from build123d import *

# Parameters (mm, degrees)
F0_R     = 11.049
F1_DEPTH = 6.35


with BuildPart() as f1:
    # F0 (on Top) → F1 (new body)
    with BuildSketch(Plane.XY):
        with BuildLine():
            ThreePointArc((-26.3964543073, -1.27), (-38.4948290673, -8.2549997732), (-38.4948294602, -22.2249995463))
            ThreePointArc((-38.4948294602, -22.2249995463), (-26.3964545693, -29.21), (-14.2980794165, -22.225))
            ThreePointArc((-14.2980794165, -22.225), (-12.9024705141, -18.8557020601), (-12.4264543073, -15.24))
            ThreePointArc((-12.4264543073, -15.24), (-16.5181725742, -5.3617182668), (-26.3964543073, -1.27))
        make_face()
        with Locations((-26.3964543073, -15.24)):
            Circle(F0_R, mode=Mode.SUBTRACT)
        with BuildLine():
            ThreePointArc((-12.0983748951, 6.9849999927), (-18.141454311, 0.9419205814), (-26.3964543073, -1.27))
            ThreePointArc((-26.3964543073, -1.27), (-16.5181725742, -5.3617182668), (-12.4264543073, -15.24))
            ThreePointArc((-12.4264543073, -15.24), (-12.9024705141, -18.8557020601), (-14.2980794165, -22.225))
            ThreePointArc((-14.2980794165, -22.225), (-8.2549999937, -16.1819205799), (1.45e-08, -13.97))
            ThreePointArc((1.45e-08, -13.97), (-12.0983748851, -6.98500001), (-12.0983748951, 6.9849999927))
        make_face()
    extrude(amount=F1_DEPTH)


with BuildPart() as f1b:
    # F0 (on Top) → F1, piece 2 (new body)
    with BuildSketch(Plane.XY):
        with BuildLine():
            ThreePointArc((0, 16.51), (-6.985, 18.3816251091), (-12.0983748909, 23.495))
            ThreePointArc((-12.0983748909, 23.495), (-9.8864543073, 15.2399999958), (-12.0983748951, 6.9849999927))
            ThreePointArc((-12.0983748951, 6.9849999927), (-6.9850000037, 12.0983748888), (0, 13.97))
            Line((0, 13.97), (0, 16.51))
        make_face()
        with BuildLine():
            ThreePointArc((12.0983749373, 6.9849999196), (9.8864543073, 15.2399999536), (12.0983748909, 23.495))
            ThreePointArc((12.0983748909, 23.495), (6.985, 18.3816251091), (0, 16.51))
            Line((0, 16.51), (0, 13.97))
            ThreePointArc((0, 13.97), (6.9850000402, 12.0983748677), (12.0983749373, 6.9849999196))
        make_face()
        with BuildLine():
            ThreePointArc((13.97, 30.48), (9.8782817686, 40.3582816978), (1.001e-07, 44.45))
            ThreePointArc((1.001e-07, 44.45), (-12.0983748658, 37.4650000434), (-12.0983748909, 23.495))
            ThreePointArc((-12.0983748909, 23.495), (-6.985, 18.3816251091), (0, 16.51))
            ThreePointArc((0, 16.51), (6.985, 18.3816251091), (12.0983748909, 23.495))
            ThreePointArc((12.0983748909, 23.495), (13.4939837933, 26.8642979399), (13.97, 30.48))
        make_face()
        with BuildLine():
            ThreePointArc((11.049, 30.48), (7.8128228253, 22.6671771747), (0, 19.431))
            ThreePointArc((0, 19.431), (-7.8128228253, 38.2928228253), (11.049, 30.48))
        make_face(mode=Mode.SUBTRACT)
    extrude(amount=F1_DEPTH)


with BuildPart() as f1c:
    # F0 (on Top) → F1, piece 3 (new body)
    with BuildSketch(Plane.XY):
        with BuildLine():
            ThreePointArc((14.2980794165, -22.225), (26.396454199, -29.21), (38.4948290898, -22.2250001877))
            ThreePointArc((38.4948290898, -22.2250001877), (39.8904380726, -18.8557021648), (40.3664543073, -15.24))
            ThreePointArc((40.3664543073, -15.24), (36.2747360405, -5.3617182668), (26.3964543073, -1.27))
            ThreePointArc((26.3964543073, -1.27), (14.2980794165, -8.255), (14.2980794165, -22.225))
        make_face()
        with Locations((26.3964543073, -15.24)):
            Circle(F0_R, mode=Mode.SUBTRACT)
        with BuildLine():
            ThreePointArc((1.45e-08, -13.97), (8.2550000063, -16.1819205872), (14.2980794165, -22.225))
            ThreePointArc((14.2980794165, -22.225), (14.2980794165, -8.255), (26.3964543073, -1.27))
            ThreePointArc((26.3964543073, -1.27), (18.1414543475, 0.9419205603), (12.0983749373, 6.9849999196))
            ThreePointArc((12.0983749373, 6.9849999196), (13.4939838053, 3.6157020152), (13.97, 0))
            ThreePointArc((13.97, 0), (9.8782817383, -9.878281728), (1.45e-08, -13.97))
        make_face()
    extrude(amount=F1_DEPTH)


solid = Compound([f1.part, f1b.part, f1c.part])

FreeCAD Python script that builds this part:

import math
import FreeCAD as App
import Part
import Sketcher
from FreeCAD import Vector
Q = App.Units.Quantity

doc = App.newDocument("Part")
body = doc.addObject("PartDesign::Body", "Body")

sketch1 = body.newObject("Sketcher::SketchObject", "Sketch")
sketch1.AttachmentSupport = (doc.getObject("XY_Plane"), [""])
sketch1.MapMode = "FlatFace"
sketch1.addGeometry(Part.ArcOfCircle(Part.Circle(Vector(-26.396454, -15.24, 0), Vector(0, 0, 1), 13.97), math.radians(90), math.radians(209.999998)), False)
sketch1.addGeometry(Part.ArcOfCircle(Part.Circle(Vector(-26.396454, -15.24, 0), Vector(0, 0, 1), 13.97), math.radians(-150.000002), math.radians(-30)), False)
sketch1.addGeometry(Part.ArcOfCircle(Part.Circle(Vector(0, -30.48, 0), Vector(0, 0, 1), 16.51), math.radians(90), math.radians(150)), False)
sketch1.addGeometry(Part.ArcOfCircle(Part.Circle(Vector(0, 0, 0), Vector(0, 0, 1), 13.97), math.radians(150), math.radians(270)), False)
sketch1.addGeometry(Part.ArcOfCircle(Part.Circle(Vector(-26.396454, 15.24, 0), Vector(0, 0, 1), 16.51), math.radians(-90), math.radians(-30)), False)
sketch1.addGeometry(Part.Circle(Vector(-26.396454, -15.24, 0), Vector(0, 0, 1), 11.049), False)
sketch1.addConstraint(Sketcher.Constraint("Tangent", 0, 2, 1, 1))
sketch1.addConstraint(Sketcher.Constraint("Tangent", 1, 2, 2, 2))
sketch1.addConstraint(Sketcher.Constraint("Tangent", 2, 1, 3, 2))
sketch1.addConstraint(Sketcher.Constraint("Tangent", 3, 1, 4, 2))
sketch1.addConstraint(Sketcher.Constraint("Tangent", 4, 1, 0, 1))
sketch1.addConstraint(Sketcher.Constraint("Coincident", 3, 3, -1, 1))
sketch1.addConstraint(Sketcher.Constraint("Coincident", 5, 3, 0, 3))
sketch1.addConstraint(Sketcher.Constraint("Equal", 0, 1))
sketch1.addConstraint(Sketcher.Constraint("Equal", 1, 3))
sketch1.addConstraint(Sketcher.Constraint("Equal", 2, 4))
sketch1.addConstraint(Sketcher.Constraint("Symmetric", 0, 3, 4, 3, -1))
sketch1.addConstraint(Sketcher.Constraint("Horizontal", 0, 2, 1, 2))
sketch1.addConstraint(Sketcher.Constraint("Diameter", 5, Q("0.87 in")))
sketch1.addConstraint(Sketcher.Constraint("Radius", 0, Q("0.55 in")))
sketch1.addConstraint(Sketcher.Constraint("Radius", 2, Q("0.65 in")))
pad1 = body.newObject("PartDesign::Pad", "Pad")
pad1.Profile = sketch1
pad1.Length = Q("0.25 in")
body2 = doc.addObject("PartDesign::Body", "Body001")

sketch2 = body2.newObject("Sketcher::SketchObject", "Sketch001")
sketch2.AttachmentSupport = (doc.getObject("XY_Plane001"), [""])
sketch2.MapMode = "FlatFace"
sketch2.addGeometry(Part.ArcOfCircle(Part.Circle(Vector(-26.396454, 15.24, 0), Vector(0, 0, 1), 16.51), math.radians(-30), math.radians(30)), False)
sketch2.addGeometry(Part.ArcOfCircle(Part.Circle(Vector(0, 0, 0), Vector(0, 0, 1), 13.97), math.radians(90), math.radians(150)), False)
sketch2.addGeometry(Part.ArcOfCircle(Part.Circle(Vector(0, 0, 0), Vector(0, 0, 1), 13.97), math.radians(30), math.radians(90)), False)
sketch2.addGeometry(Part.ArcOfCircle(Part.Circle(Vector(26.396454, 15.24, 0), Vector(0, 0, 1), 16.51), math.radians(150), math.radians(210)), False)
sketch2.addGeometry(Part.ArcOfCircle(Part.Circle(Vector(0, 30.48, 0), Vector(0, 0, 1), 13.97), math.radians(-30), math.radians(0)), False)
sketch2.addGeometry(Part.ArcOfCircle(Part.Circle(Vector(0, 30.48, 0), Vector(0, 0, 1), 13.97), math.radians(0), math.radians(90)), False)
sketch2.addGeometry(Part.ArcOfCircle(Part.Circle(Vector(0, 30.48, 0), Vector(0, 0, 1), 13.97), math.radians(90), math.radians(210)), False)
sketch2.addGeometry(Part.ArcOfCircle(Part.Circle(Vector(0, 30.48, 0), Vector(0, 0, 1), 11.049), math.radians(0), math.radians(270)), False)
sketch2.addGeometry(Part.ArcOfCircle(Part.Circle(Vector(0, 30.48, 0), Vector(0, 0, 1), 11.049), math.radians(-90), math.radians(0)), False)
sketch2.addConstraint(Sketcher.Constraint("Tangent", 0, 1, 1, 2))
sketch2.addConstraint(Sketcher.Constraint("Tangent", 1, 1, 2, 2))
sketch2.addConstraint(Sketcher.Constraint("Tangent", 2, 1, 3, 2))
sketch2.addConstraint(Sketcher.Constraint("Tangent", 3, 1, 4, 1))
sketch2.addConstraint(Sketcher.Constraint("Tangent", 4, 2, 5, 1))
sketch2.addConstraint(Sketcher.Constraint("Tangent", 5, 2, 6, 1))
sketch2.addConstraint(Sketcher.Constraint("Tangent", 6, 2, 0, 2))
sketch2.addConstraint(Sketcher.Constraint("Tangent", 7, 1, 8, 2))
sketch2.addConstraint(Sketcher.Constraint("Coincident", 8, 1, 7, 2))
sketch2.addConstraint(Sketcher.Constraint("Coincident", 1, 3, -1, 1))
sketch2.addConstraint(Sketcher.Constraint("Coincident", 6, 3, 4, 3))
sketch2.addConstraint(Sketcher.Constraint("Coincident", 7, 3, 4, 3))
sketch2.addConstraint(Sketcher.Constraint("Equal", 1, 2))
sketch2.addConstraint(Sketcher.Constraint("Equal", 0, 3))
sketch2.addConstraint(Sketcher.Constraint("Equal", 2, 4))
sketch2.addConstraint(Sketcher.Constraint("PointOnObject", 4, 3, -2))
sketch2.addConstraint(Sketcher.Constraint("PointOnObject", 1, 1, -2))
sketch2.addConstraint(Sketcher.Constraint("PointOnObject", 5, 2, -2))
sketch2.addConstraint(Sketcher.Constraint("PointOnObject", 8, 1, -2))
sketch2.addConstraint(Sketcher.Constraint("Horizontal", 8, 3, 4, 2))
sketch2.addConstraint(Sketcher.Constraint("Horizontal", 4, 2, 7, 1))
sketch2.addConstraint(Sketcher.Constraint("Radius", 0, Q("0.65 in")))
sketch2.addConstraint(Sketcher.Constraint("Radius", 1, Q("0.55 in")))
sketch2.addConstraint(Sketcher.Constraint("Radius", 7, Q("0.435 in")))
sketch2.addConstraint(Sketcher.Constraint("DistanceY", -1, 1, 0, 3, Q("0.6 in")))
pad2 = body2.newObject("PartDesign::Pad", "Pad001")
pad2.Profile = sketch2
pad2.Length = Q("0.25 in")
body3 = doc.addObject("PartDesign::Body", "Body002")

sketch3 = body3.newObject("Sketcher::SketchObject", "Sketch002")
sketch3.AttachmentSupport = (doc.getObject("XY_Plane002"), [""])
sketch3.MapMode = "FlatFace"
sketch3.addGeometry(Part.ArcOfCircle(Part.Circle(Vector(26.396454, -15.24, 0), Vector(0, 0, 1), 13.97), math.radians(-150), math.radians(-30.000001)), False)
sketch3.addGeometry(Part.ArcOfCircle(Part.Circle(Vector(26.396454, -15.24, 0), Vector(0, 0, 1), 13.97), math.radians(-30.000001), math.radians(0)), False)
sketch3.addGeometry(Part.ArcOfCircle(Part.Circle(Vector(26.396454, -15.24, 0), Vector(0, 0, 1), 13.97), math.radians(0), math.radians(90)), False)
sketch3.addGeometry(Part.ArcOfCircle(Part.Circle(Vector(26.396454, 15.24, 0), Vector(0, 0, 1), 16.51), math.radians(-150), math.radians(-90)), False)
sketch3.addGeometry(Part.ArcOfCircle(Part.Circle(Vector(0, 0, 0), Vector(0, 0, 1), 13.97), math.radians(-90), math.radians(30)), False)
sketch3.addGeometry(Part.ArcOfCircle(Part.Circle(Vector(0, -30.48, 0), Vector(0, 0, 1), 16.51), math.radians(30), math.radians(90)), False)
sketch3.addGeometry(Part.Circle(Vector(26.396454, -15.24, 0), Vector(0, 0, 1), 11.049), False)
sketch3.addConstraint(Sketcher.Constraint("Tangent", 0, 2, 1, 1))
sketch3.addConstraint(Sketcher.Constraint("Tangent", 1, 2, 2, 1))
sketch3.addConstraint(Sketcher.Constraint("Tangent", 2, 2, 3, 2))
sketch3.addConstraint(Sketcher.Constraint("Tangent", 3, 1, 4, 2))
sketch3.addConstraint(Sketcher.Constraint("Tangent", 4, 1, 5, 2))
sketch3.addConstraint(Sketcher.Constraint("Tangent", 5, 1, 0, 1))
sketch3.addConstraint(Sketcher.Constraint("Coincident", 4, 3, -1, 1))
sketch3.addConstraint(Sketcher.Constraint("Coincident", 2, 3, 0, 3))
sketch3.addConstraint(Sketcher.Constraint("Coincident", 6, 3, 0, 3))
sketch3.addConstraint(Sketcher.Constraint("Equal", 2, 4))
sketch3.addConstraint(Sketcher.Constraint("Equal", 3, 5))
sketch3.addConstraint(Sketcher.Constraint("Symmetric", 0, 3, 3, 3, -1))
sketch3.addConstraint(Sketcher.Constraint("Horizontal", 6, 3, 1, 2))
sketch3.addConstraint(Sketcher.Constraint("Horizontal", 0, 2, 5, 1))
sketch3.addConstraint(Sketcher.Constraint("Diameter", 6, Q("0.87 in")))
sketch3.addConstraint(Sketcher.Constraint("Radius", 0, Q("0.55 in")))
sketch3.addConstraint(Sketcher.Constraint("Radius", 3, Q("0.65 in")))
pad3 = body3.newObject("PartDesign::Pad", "Pad002")
pad3.Profile = sketch3
pad3.Length = Q("0.25 in")

doc.recompute()
